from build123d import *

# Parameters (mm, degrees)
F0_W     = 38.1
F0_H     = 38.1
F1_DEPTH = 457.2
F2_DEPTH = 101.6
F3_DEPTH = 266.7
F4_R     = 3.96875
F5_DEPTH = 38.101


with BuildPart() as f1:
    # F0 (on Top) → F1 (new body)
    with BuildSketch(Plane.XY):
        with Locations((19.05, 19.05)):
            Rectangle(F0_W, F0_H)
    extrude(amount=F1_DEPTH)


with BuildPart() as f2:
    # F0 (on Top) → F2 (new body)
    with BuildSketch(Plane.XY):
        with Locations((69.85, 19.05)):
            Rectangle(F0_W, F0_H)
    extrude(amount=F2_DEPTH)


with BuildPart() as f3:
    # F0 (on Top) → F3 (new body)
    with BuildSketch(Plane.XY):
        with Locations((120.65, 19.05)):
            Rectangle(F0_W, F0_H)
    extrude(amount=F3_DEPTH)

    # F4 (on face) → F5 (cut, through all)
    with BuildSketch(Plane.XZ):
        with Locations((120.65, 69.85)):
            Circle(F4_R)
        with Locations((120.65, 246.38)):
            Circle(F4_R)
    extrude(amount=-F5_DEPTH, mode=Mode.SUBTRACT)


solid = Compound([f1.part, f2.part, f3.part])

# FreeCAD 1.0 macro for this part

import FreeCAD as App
import Part
import Sketcher
from FreeCAD import Vector
Q = App.Units.Quantity


def add_polygon(sketch, points):
    """Adds a closed chain of lines whose ends are joined by coincident constraints."""
    first, n = sketch.GeometryCount, len(points)
    for a, b in zip(points, points[1:] + points[:1]):
        sketch.addGeometry(Part.LineSegment(App.Vector(*a, 0), App.Vector(*b, 0)), False)
    for i in range(n):
        sketch.addConstraint(Sketcher.Constraint("Coincident", first + i, 2, first + (i + 1) % n, 1))

doc = App.newDocument("Part")
body = doc.addObject("PartDesign::Body", "Body")

# Sketch on XY plane
sketch1 = body.newObject("Sketcher::SketchObject", "Sketch")
sketch1.AttachmentSupport = (doc.getObject("XY_Plane"), [""])
sketch1.MapMode = "FlatFace"
add_polygon(sketch1, [(0, 38.1), (0, 0), (38.1, 0), (38.1, 38.1)])  # lines 0-3
sketch1.addConstraint([
    Sketcher.Constraint("Vertical", 0),
    Sketcher.Constraint("Horizontal", 1),
    Sketcher.Constraint("Vertical", 2),
    Sketcher.Constraint("Horizontal", 3),
    Sketcher.Constraint("Coincident", 0, 2, -1, 1),
    Sketcher.Constraint("Equal", 3, 0),
    Sketcher.Constraint("DistanceX", 1, 1, 1, 2, Q("1.5 in")),
])
pad1 = body.newObject("PartDesign::Pad", "Pad")
pad1.Profile = sketch1
pad1.Length = Q("18 in")
body2 = doc.addObject("PartDesign::Body", "Body001")

# Sketch on XY plane
sketch2 = body2.newObject("Sketcher::SketchObject", "Sketch001")
sketch2.AttachmentSupport = (doc.getObject("XY_Plane001"), [""])
sketch2.MapMode = "FlatFace"
add_polygon(sketch2, [(50.8, 38.1), (50.8, 0), (88.9, 0), (88.9, 38.1)])  # lines 0-3
sketch2.addConstraint([
    Sketcher.Constraint("Vertical", 0),
    Sketcher.Constraint("Horizontal", 1),
    Sketcher.Constraint("Vertical", 2),
    Sketcher.Constraint("Horizontal", 3),
    Sketcher.Constraint("PointOnObject", 0, 2, -1),
    Sketcher.Constraint("Equal", 3, 0),
    Sketcher.Constraint("DistanceX", 1, 1, 1, 2, Q("1.5 in")),
    Sketcher.Constraint("DistanceX", -1, 1, 0, 2, Q("2 in")),
])
pad2 = body2.newObject("PartDesign::Pad", "Pad001")
pad2.Profile = sketch2
pad2.Length = Q("4 in")
body3 = doc.addObject("PartDesign::Body", "Body002")

# Sketch on XY plane
sketch3 = body3.newObject("Sketcher::SketchObject", "Sketch002")
sketch3.AttachmentSupport = (doc.getObject("XY_Plane002"), [""])
sketch3.MapMode = "FlatFace"
add_polygon(sketch3, [(101.6, 38.1), (101.6, 0), (139.7, 0), (139.7, 38.1)])  # lines 0-3
sketch3.addConstraint([
    Sketcher.Constraint("Vertical", 0),
    Sketcher.Constraint("Horizontal", 1),
    Sketcher.Constraint("Vertical", 2),
    Sketcher.Constraint("Horizontal", 3),
    Sketcher.Constraint("PointOnObject", 0, 2, -1),
    Sketcher.Constraint("Equal", 3, 0),
    Sketcher.Constraint("DistanceX", 1, 1, 1, 2, Q("1.5 in")),
    Sketcher.Constraint("DistanceX", -1, 1, 0, 2, Q("4 in")),
])
pad3 = body3.newObject("PartDesign::Pad", "Pad002")
pad3.Profile = sketch3
pad3.Length = Q("10.5 in")

# Sketch on XZ plane
sketch4 = body3.newObject("Sketcher::SketchObject", "Sketch003")
sketch4.AttachmentSupport = (doc.getObject("XZ_Plane002"), [""])
sketch4.MapMode = "FlatFace"
sketch4.addGeometry([
    Part.Circle(Vector(120.65, 69.85, 0), Vector(0, 0, 1), 3.96875),
    Part.Circle(Vector(120.65, 246.38, 0), Vector(0, 0, 1), 3.96875),
], False)
sketch4.addConstraint([
    Sketcher.Constraint("Equal", 0, 1),
    Sketcher.Constraint("Vertical", 0, 3, 1, 3),
    Sketcher.Constraint("Diameter", 0, Q("0.3125 in")),
    Sketcher.Constraint("DistanceY", -1, 1, 1, 3, Q("9.7 in")),
    Sketcher.Constraint("DistanceX", -1, 1, 0, 3, Q("4.75 in")),
    Sketcher.Constraint("DistanceY", -1, 1, 0, 3, Q("2.75 in")),
])
pocket1 = body3.newObject("PartDesign::Pocket", "Pocket")
pocket1.Profile = sketch4
pocket1.Type = "ThroughAll"

doc.recompute()
